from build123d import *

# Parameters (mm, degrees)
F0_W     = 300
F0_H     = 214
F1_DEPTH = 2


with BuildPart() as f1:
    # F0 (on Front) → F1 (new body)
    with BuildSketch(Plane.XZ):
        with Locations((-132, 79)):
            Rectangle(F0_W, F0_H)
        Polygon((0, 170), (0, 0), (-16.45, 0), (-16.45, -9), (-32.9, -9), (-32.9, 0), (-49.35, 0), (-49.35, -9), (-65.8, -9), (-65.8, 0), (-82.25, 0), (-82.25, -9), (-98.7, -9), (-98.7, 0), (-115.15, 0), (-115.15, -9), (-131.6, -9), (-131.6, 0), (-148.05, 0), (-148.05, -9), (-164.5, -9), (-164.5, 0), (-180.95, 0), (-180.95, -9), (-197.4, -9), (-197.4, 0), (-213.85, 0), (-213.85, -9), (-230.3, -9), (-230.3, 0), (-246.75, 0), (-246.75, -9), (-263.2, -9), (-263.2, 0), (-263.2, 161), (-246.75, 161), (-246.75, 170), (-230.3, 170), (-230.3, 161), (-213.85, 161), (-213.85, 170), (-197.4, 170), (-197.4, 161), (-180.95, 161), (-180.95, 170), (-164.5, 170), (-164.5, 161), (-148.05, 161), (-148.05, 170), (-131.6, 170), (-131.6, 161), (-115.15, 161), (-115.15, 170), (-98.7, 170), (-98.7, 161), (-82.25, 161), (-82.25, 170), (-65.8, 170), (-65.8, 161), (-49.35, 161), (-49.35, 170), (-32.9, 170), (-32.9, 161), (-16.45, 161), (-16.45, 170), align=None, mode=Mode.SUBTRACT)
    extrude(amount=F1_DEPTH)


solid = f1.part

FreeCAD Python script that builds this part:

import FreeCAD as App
import Part
import Sketcher

V = App.Vector
Q = App.Units.Quantity


def add_polygon(sketch, points):
    """Adds a closed chain of lines whose ends are joined by coincident constraints."""
    first, n = sketch.GeometryCount, len(points)
    for a, b in zip(points, points[1:] + points[:1]):
        sketch.addGeometry(Part.LineSegment(App.Vector(*a, 0), App.Vector(*b, 0)), False)
    for i in range(n):
        sketch.addConstraint(Sketcher.Constraint("Coincident", first + i, 2, first + (i + 1) % n, 1))

doc = App.newDocument("Part")
body = doc.addObject("PartDesign::Body", "Body")

# Sketch on XZ plane
sketch1 = body.newObject("Sketcher::SketchObject", "Sketch")
sketch1.AttachmentSupport = (doc.getObject("XZ_Plane"), [""])
sketch1.MapMode = "FlatFace"
add_polygon(sketch1, [(-282, 186), (-282, -28), (18, -28), (18, 186)])  # lines 0-3
add_polygon(sketch1, [(-16, 170), (0, 170), (0, 0), (-16, 0), (-16, -9), (-33, -9), (-33, 0), (-49, 0), (-49, -9), (-66, -9), (-66, 0), (-82, 0), (-82, -9), (-99, -9), (-99, 0), (-115, 0), (-115, -9), (-132, -9), (-132, 0), (-148, 0), (-148, -9), (-164, -9), (-164, 0), (-181, 0), (-181, -9), (-197, -9), (-197, 0), (-214, 0), (-214, -9), (-230, -9), (-230, 0), (-247, 0), (-247, -9), (-263, -9), (-263, 161), (-247, 161), (-247, 170), (-230, 170), (-230, 161), (-214, 161), (-214, 170), (-197, 170), (-197, 161), (-181, 161), (-181, 170), (-164, 170), (-164, 161), (-148, 161), (-148, 170), (-132, 170), (-132, 161), (-115, 161), (-115, 170), (-99, 170), (-99, 161), (-82, 161), (-82, 170), (-66, 170), (-66, 161), (-49, 161), (-49, 170), (-33, 170), (-33, 161), (-16, 161)])  # lines 4-67
sketch1.addConstraint([
    Sketcher.Constraint("Vertical", 0),
    Sketcher.Constraint("Horizontal", 1),
    Sketcher.Constraint("Vertical", 2),
    Sketcher.Constraint("Horizontal", 3),
    Sketcher.Constraint("Horizontal", 4),
    Sketcher.Constraint("Vertical", 5),
    Sketcher.Constraint("Horizontal", 6),
    Sketcher.Constraint("Vertical", 7),
    Sketcher.Constraint("Horizontal", 8),
    Sketcher.Constraint("Vertical", 9),
    Sketcher.Constraint("Horizontal", 10),
    Sketcher.Constraint("Vertical", 11),
    Sketcher.Constraint("Horizontal", 12),
    Sketcher.Constraint("Vertical", 13),
    Sketcher.Constraint("Horizontal", 14),
    Sketcher.Constraint("Vertical", 15),
    Sketcher.Constraint("Horizontal", 16),
    Sketcher.Constraint("Vertical", 17),
    Sketcher.Constraint("Horizontal", 18),
    Sketcher.Constraint("Vertical", 19),
    Sketcher.Constraint("Horizontal", 20),
    Sketcher.Constraint("Vertical", 21),
    Sketcher.Constraint("Horizontal", 22),
    Sketcher.Constraint("Vertical", 23),
    Sketcher.Constraint("Horizontal", 24),
    Sketcher.Constraint("Vertical", 25),
    Sketcher.Constraint("Horizontal", 26),
    Sketcher.Constraint("Vertical", 27),
    Sketcher.Constraint("Horizontal", 28),
    Sketcher.Constraint("Vertical", 29),
    Sketcher.Constraint("Horizontal", 30),
    Sketcher.Constraint("Vertical", 31),
    Sketcher.Constraint("Horizontal", 32),
    Sketcher.Constraint("Vertical", 33),
    Sketcher.Constraint("Horizontal", 34),
    Sketcher.Constraint("Vertical", 35),
    Sketcher.Constraint("Horizontal", 36),
    Sketcher.Constraint("Vertical", 37),
    Sketcher.Constraint("Horizontal", 38),
    Sketcher.Constraint("Vertical", 39),
    Sketcher.Constraint("Horizontal", 40),
    Sketcher.Constraint("Vertical", 41),
    Sketcher.Constraint("Horizontal", 42),
    Sketcher.Constraint("Vertical", 43),
    Sketcher.Constraint("Horizontal", 44),
    Sketcher.Constraint("Vertical", 45),
    Sketcher.Constraint("Horizontal", 46),
    Sketcher.Constraint("Vertical", 47),
    Sketcher.Constraint("Horizontal", 48),
    Sketcher.Constraint("Vertical", 49),
    Sketcher.Constraint("Horizontal", 50),
    Sketcher.Constraint("Vertical", 51),
    Sketcher.Constraint("Horizontal", 52),
    Sketcher.Constraint("Vertical", 53),
    Sketcher.Constraint("Horizontal", 54),
    Sketcher.Constraint("Vertical", 55),
    Sketcher.Constraint("Horizontal", 56),
    Sketcher.Constraint("Vertical", 57),
    Sketcher.Constraint("Horizontal", 58),
    Sketcher.Constraint("Vertical", 59),
    Sketcher.Constraint("Horizontal", 60),
    Sketcher.Constraint("Vertical", 61),
    Sketcher.Constraint("Horizontal", 62),
    Sketcher.Constraint("Vertical", 63),
    Sketcher.Constraint("Horizontal", 64),
    Sketcher.Constraint("Vertical", 65),
    Sketcher.Constraint("Horizontal", 66),
    Sketcher.Constraint("Vertical", 67),
    Sketcher.Constraint("Coincident", 5, 2, -1, 1),
    Sketcher.Constraint("PointOnObject", 9, 2, -1),
    Sketcher.Constraint("PointOnObject", 13, 2, -1),
    Sketcher.Constraint("PointOnObject", 17, 2, -1),
    Sketcher.Constraint("PointOnObject", 21, 2, -1),
    Sketcher.Constraint("PointOnObject", 25, 2, -1),
    Sketcher.Constraint("PointOnObject", 29, 2, -1),
    Sketcher.Constraint("PointOnObject", 33, 2, -1),
    Sketcher.Constraint("Horizontal", 8, 2, 11, 2),
    Sketcher.Constraint("Horizontal", 12, 2, 15, 2),
    Sketcher.Constraint("Horizontal", 16, 2, 19, 2),
    Sketcher.Constraint("Horizontal", 20, 2, 23, 2),
    Sketcher.Constraint("Horizontal", 24, 2, 27, 2),
    Sketcher.Constraint("Horizontal", 28, 2, 31, 2),
    Sketcher.Constraint("Horizontal", 32, 2, 35, 2),
    Sketcher.Constraint("Horizontal", 4, 2, 39, 2),
    Sketcher.Constraint("Horizontal", 38, 2, 41, 2),
    Sketcher.Constraint("Horizontal", 40, 2, 43, 2),
    Sketcher.Constraint("Horizontal", 42, 2, 45, 2),
    Sketcher.Constraint("Horizontal", 44, 2, 47, 2),
    Sketcher.Constraint("Horizontal", 46, 2, 49, 2),
    Sketcher.Constraint("Horizontal", 48, 2, 51, 2),
    Sketcher.Constraint("Horizontal", 50, 2, 53, 2),
    Sketcher.Constraint("Horizontal", 52, 2, 55, 2),
    Sketcher.Constraint("Horizontal", 54, 2, 57, 2),
    Sketcher.Constraint("Horizontal", 56, 2, 59, 2),
    Sketcher.Constraint("Horizontal", 58, 2, 61, 2),
    Sketcher.Constraint("Horizontal", 60, 2, 63, 2),
    Sketcher.Constraint("Horizontal", 62, 2, 65, 2),
    Sketcher.Constraint("Vertical", 35, 2, 38, 2),
    Sketcher.Constraint("Vertical", 33, 2, 40, 2),
    Sketcher.Constraint("Vertical", 31, 2, 42, 2),
    Sketcher.Constraint("Vertical", 29, 2, 44, 2),
    Sketcher.Constraint("Vertical", 27, 2, 46, 2),
    Sketcher.Constraint("Vertical", 25, 2, 48, 2),
    Sketcher.Constraint("Vertical", 23, 2, 50, 2),
    Sketcher.Constraint("Vertical", 21, 2, 52, 2),
    Sketcher.Constraint("Vertical", 19, 2, 54, 2),
    Sketcher.Constraint("Vertical", 17, 2, 56, 2),
    Sketcher.Constraint("Vertical", 15, 2, 58, 2),
    Sketcher.Constraint("Vertical", 13, 2, 60, 2),
    Sketcher.Constraint("Vertical", 11, 2, 62, 2),
    Sketcher.Constraint("Vertical", 9, 2, 64, 2),
    Sketcher.Constraint("Vertical", 7, 2, 66, 2),
    Sketcher.Constraint("Equal", 6, 8),
    Sketcher.Constraint("Equal", 8, 10),
    Sketcher.Constraint("Equal", 10, 12),
    Sketcher.Constraint("Equal", 12, 14),
    Sketcher.Constraint("Equal", 14, 16),
    Sketcher.Constraint("Equal", 16, 18),
    Sketcher.Constraint("Equal", 18, 20),
    Sketcher.Constraint("Equal", 20, 22),
    Sketcher.Constraint("Equal", 22, 24),
    Sketcher.Constraint("Equal", 24, 26),
    Sketcher.Constraint("Equal", 26, 28),
    Sketcher.Constraint("Equal", 28, 30),
    Sketcher.Constraint("Equal", 30, 32),
    Sketcher.Constraint("Equal", 32, 34),
    Sketcher.Constraint("Equal", 34, 36),
    Sketcher.Constraint("Equal", 5, 37),
    Sketcher.Constraint("DistanceX", 1, 1, 1, 2, Q("300 mm")),
    Sketcher.Constraint("DistanceY", 0, 2, 0, 1, Q("214 mm")),
    Sketcher.Constraint("DistanceY", 5, 2, 5, 1, Q("170 mm")),
    Sketcher.Constraint("DistanceY", 7, 2, 7, 1, Q("9 mm")),
    Sketcher.Constraint("DistanceX", 0, 2, -1, 1, Q("282 mm")),
    Sketcher.Constraint("DistanceY", 0, 2, -1, 1, Q("28 mm")),
    Sketcher.Constraint("DistanceX", 4, 1, 4, 2, Q("16.45 mm")),
])
pad1 = body.newObject("PartDesign::Pad", "Pad")
pad1.Profile = sketch1
pad1.Length = 2

doc.recompute()
